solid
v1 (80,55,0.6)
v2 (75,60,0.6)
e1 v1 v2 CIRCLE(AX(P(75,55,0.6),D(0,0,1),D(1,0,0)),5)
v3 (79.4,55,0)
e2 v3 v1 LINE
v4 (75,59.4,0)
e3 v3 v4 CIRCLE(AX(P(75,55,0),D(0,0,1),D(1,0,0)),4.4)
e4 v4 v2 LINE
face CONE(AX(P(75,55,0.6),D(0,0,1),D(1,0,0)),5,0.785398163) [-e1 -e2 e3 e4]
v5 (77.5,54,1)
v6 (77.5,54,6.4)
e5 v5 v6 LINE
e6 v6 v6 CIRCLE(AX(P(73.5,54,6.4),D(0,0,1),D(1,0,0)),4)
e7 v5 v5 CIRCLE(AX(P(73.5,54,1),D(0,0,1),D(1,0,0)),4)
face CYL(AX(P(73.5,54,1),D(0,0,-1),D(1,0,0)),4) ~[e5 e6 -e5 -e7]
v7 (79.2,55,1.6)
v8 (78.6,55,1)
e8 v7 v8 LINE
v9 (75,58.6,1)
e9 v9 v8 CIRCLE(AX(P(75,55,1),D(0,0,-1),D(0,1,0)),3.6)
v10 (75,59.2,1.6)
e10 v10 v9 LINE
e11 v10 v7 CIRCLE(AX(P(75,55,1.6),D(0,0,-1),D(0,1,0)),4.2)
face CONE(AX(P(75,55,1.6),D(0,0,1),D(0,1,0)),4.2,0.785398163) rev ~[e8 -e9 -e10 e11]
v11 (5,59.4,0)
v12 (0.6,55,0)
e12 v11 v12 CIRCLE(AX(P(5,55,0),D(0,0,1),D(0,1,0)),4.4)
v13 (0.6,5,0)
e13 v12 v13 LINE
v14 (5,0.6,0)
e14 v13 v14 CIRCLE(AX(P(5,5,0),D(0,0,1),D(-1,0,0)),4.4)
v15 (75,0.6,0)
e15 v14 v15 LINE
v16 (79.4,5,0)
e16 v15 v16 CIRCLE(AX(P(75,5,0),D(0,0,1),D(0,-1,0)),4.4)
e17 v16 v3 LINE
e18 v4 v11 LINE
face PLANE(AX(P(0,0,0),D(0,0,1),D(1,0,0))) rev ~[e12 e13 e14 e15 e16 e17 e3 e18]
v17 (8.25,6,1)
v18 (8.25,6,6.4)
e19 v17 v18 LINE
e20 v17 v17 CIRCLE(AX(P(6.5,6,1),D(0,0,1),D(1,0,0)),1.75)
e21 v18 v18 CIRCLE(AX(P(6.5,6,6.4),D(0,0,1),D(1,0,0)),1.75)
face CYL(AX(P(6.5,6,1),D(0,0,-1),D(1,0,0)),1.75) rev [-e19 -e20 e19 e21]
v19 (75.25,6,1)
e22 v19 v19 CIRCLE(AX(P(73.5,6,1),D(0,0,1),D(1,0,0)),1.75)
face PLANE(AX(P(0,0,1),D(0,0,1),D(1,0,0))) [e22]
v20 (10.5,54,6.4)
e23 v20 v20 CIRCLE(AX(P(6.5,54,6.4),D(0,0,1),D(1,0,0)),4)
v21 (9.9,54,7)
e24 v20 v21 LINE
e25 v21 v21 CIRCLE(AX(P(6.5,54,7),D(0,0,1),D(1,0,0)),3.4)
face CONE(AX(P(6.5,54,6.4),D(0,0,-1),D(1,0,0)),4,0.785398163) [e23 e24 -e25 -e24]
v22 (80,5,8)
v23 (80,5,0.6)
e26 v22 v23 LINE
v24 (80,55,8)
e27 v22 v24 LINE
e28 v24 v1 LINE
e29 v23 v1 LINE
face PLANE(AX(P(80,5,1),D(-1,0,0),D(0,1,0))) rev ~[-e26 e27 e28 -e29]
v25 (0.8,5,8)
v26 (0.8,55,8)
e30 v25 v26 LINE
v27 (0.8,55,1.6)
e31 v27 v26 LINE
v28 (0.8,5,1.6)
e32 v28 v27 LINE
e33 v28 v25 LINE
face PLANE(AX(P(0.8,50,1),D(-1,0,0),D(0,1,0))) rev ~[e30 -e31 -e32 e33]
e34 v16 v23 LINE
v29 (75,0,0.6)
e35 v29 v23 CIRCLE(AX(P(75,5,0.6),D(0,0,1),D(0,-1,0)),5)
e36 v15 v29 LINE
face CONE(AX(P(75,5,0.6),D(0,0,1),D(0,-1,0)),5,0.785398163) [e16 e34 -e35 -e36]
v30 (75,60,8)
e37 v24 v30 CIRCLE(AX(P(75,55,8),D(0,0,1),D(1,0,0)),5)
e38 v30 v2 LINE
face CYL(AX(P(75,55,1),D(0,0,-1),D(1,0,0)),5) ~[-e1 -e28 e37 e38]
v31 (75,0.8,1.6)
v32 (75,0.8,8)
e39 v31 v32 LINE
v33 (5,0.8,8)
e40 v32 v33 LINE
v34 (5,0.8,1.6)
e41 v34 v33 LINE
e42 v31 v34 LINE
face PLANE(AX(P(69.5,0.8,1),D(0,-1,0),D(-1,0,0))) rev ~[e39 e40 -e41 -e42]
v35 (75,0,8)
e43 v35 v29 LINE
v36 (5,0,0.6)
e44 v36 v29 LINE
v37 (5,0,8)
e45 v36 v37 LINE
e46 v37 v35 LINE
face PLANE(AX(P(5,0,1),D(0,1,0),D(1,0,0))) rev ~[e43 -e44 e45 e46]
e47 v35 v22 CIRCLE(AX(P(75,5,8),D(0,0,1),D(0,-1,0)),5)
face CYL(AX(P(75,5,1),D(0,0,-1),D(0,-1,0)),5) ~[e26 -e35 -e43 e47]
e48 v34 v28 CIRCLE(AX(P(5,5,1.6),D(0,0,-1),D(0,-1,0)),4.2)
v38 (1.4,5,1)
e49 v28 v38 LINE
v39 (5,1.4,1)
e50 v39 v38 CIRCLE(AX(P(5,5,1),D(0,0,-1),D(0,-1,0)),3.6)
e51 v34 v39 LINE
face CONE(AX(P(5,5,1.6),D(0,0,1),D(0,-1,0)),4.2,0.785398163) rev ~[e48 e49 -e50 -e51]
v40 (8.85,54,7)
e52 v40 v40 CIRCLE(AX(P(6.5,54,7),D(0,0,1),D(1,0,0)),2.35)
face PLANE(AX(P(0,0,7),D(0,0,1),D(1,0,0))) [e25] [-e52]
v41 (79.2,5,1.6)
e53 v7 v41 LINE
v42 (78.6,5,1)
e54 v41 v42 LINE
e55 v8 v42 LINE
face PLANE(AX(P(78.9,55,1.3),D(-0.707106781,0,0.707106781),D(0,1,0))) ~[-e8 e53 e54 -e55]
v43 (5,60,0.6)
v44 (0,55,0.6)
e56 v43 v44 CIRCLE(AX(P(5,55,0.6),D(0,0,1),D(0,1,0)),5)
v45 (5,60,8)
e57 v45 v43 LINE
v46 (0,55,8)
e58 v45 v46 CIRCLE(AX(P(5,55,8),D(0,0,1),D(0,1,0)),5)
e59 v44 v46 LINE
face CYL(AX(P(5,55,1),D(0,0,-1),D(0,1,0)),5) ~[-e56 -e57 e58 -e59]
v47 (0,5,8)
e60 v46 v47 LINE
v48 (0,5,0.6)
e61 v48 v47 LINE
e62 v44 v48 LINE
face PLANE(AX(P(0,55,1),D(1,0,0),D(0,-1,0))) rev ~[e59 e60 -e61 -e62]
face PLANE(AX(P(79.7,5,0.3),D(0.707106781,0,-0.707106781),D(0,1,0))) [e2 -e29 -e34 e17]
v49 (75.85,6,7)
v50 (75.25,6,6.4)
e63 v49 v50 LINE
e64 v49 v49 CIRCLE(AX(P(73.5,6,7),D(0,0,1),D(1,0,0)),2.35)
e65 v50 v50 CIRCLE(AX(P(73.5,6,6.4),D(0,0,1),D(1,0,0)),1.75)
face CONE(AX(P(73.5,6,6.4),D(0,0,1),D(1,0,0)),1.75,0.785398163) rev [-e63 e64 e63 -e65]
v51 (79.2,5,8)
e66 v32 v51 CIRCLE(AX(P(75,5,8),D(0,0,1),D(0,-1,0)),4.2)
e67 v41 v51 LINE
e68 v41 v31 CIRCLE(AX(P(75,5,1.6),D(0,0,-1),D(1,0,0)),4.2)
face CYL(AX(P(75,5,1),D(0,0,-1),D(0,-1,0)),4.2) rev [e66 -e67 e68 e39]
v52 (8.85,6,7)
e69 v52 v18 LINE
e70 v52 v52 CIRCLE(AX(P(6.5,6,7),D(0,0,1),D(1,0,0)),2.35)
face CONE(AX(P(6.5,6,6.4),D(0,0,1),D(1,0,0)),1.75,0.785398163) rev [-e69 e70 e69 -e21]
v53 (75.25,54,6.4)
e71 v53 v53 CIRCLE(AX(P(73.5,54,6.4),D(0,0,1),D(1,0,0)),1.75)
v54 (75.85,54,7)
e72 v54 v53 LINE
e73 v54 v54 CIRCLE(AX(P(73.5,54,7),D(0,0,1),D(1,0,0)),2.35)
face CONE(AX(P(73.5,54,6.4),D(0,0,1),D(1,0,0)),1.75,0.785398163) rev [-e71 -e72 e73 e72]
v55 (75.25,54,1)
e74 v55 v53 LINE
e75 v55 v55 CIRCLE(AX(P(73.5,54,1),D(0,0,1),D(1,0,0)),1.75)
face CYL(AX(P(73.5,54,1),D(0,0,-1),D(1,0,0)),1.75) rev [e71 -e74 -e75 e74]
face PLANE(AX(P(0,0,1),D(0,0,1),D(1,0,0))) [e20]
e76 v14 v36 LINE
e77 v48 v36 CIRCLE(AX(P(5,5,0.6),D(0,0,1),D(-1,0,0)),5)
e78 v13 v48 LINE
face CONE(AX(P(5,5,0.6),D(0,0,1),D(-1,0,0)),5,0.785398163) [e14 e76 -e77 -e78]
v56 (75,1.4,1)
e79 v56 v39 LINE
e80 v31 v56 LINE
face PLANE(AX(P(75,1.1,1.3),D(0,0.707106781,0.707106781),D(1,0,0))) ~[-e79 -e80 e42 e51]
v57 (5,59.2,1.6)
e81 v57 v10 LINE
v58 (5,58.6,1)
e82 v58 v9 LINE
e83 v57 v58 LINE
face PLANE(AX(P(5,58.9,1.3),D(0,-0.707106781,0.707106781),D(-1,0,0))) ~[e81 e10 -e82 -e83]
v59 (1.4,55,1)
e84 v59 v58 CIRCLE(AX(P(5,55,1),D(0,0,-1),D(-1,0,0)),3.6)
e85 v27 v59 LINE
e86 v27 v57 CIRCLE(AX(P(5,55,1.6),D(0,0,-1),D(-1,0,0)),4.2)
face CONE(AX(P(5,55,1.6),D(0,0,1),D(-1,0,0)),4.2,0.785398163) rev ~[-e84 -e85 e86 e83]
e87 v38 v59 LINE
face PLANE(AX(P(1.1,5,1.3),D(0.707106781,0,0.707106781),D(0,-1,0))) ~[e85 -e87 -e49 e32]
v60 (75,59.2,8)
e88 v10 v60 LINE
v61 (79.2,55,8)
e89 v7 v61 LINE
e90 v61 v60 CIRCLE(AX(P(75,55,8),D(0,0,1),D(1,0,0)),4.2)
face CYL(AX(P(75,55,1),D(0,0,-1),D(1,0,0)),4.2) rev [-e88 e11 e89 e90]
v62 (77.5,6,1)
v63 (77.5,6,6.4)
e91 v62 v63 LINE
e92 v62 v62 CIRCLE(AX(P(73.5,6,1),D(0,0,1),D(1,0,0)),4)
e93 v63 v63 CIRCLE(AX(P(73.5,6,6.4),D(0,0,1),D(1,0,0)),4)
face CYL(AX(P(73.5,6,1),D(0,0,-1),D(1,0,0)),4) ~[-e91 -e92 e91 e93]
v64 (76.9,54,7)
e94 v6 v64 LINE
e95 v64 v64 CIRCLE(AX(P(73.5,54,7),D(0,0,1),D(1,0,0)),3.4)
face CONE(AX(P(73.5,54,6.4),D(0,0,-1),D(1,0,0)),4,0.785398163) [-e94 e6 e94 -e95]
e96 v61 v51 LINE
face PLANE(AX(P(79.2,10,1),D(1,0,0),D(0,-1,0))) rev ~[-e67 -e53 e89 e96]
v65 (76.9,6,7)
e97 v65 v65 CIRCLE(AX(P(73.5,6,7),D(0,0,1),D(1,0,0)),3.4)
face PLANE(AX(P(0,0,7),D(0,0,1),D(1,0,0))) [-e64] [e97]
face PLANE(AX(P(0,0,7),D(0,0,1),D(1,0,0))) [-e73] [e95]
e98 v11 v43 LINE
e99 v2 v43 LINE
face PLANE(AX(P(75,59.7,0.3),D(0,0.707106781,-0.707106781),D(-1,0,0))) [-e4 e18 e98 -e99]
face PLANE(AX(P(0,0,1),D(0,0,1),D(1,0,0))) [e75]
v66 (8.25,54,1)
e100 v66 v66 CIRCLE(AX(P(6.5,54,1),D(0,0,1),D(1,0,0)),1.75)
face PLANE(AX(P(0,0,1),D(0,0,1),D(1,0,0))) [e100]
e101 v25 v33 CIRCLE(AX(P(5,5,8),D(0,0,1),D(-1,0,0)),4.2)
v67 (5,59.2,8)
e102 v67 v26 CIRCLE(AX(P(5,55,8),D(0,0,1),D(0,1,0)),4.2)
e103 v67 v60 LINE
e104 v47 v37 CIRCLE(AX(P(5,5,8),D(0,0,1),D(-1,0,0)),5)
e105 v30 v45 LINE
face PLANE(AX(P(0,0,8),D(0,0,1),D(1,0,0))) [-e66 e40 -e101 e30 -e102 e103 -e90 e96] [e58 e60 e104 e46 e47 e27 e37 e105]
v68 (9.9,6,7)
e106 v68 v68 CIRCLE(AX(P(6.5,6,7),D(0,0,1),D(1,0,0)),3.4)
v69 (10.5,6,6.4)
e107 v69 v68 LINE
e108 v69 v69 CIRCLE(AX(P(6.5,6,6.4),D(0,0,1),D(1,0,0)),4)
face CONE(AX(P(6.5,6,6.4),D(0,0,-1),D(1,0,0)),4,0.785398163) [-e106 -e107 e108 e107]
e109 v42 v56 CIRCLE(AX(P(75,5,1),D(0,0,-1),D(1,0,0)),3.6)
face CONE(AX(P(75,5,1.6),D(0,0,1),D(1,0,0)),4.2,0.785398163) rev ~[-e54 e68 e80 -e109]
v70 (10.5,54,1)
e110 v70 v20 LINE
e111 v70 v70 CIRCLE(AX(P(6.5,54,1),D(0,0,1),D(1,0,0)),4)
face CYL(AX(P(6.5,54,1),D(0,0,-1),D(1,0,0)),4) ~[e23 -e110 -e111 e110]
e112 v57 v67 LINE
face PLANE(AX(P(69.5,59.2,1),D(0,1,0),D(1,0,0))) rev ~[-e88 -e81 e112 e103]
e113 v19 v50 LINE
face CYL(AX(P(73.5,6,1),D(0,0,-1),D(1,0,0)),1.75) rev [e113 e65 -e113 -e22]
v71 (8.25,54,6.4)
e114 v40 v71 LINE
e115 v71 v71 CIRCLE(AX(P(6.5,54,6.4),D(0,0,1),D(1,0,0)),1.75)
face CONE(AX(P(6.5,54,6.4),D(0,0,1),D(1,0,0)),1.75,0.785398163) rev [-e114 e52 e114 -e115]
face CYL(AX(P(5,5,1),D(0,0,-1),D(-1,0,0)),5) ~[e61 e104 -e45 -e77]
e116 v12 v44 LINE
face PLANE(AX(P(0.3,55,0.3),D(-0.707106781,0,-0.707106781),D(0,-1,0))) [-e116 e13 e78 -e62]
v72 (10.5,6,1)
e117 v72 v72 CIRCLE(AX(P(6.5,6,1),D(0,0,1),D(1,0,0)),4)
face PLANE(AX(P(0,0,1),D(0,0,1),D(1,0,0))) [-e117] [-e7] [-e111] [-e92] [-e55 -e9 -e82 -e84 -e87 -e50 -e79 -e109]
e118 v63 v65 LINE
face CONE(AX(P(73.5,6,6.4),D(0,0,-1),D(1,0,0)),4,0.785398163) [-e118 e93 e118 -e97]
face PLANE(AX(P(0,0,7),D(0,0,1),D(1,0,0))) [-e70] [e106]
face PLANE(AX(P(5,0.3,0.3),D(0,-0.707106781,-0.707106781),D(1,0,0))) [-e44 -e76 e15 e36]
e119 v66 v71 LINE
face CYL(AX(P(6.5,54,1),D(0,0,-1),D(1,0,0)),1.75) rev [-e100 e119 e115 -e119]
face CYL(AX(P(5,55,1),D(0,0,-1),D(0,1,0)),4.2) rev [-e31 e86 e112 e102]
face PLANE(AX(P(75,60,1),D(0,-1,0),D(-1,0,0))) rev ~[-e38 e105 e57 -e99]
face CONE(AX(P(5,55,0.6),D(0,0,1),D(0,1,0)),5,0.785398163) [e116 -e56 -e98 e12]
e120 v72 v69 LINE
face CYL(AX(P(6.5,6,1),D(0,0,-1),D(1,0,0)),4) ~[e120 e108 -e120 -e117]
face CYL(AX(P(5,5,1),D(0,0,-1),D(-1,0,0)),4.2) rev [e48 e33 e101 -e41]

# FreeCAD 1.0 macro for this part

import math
import FreeCAD as App
import Part
import Sketcher

V = App.Vector


def edges_at(feature, points):
    """Names of the edges that pass closest to the given points."""
    edges = feature.Shape.Edges
    near = lambda p: min(range(len(edges)), key=lambda i: edges[i].distToShape(Part.Vertex(*p))[0])
    return sorted({f"Edge{near(p) + 1}" for p in points})

doc = App.newDocument("Part")
body = doc.addObject("PartDesign::Body", "Body")

# Sketch on XY plane
sketch1 = doc.addObject("Sketcher::SketchObject", "Sketch")
body.addObject(sketch1)
sketch1.AttachmentSupport = (doc.XY_Plane, [""])
sketch1.MapMode = "FlatFace"
sketch1.addGeometry([
    Part.ArcOfCircle(Part.Circle(V(5, 5, 0), V(0, 0, 1), 5), math.radians(180), math.radians(270)),  # 0
    Part.LineSegment(V(5, 0, 0), V(75, 0, 0)),  # 1
    Part.ArcOfCircle(Part.Circle(V(75, 5, 0), V(0, 0, 1), 5), math.radians(-90), math.radians(0)),  # 2
    Part.LineSegment(V(80, 5, 0), V(80, 55, 0)),  # 3
    Part.ArcOfCircle(Part.Circle(V(75, 55, 0), V(0, 0, 1), 5), math.radians(0), math.radians(90)),  # 4
    Part.LineSegment(V(75, 60, 0), V(5, 60, 0)),  # 5
    Part.ArcOfCircle(Part.Circle(V(5, 55, 0), V(0, 0, 1), 5), math.radians(90), math.radians(180)),  # 6
    Part.LineSegment(V(0, 55, 0), V(0, 5, 0)),  # 7
], False)
sketch1.addConstraint([
    Sketcher.Constraint("Tangent", 0, 2, 1, 1),
    Sketcher.Constraint("Tangent", 1, 2, 2, 1),
    Sketcher.Constraint("Tangent", 2, 2, 3, 1),
    Sketcher.Constraint("Tangent", 3, 2, 4, 1),
    Sketcher.Constraint("Tangent", 4, 2, 5, 1),
    Sketcher.Constraint("Tangent", 5, 2, 6, 1),
    Sketcher.Constraint("Tangent", 6, 2, 7, 1),
    Sketcher.Constraint("Tangent", 7, 2, 0, 1),
    Sketcher.Constraint("Horizontal", 1),
    Sketcher.Constraint("Vertical", 3),
    Sketcher.Constraint("Horizontal", 5),
    Sketcher.Constraint("Vertical", 7),
    Sketcher.Constraint("Equal", 0, 2),
    Sketcher.Constraint("Equal", 2, 4),
    Sketcher.Constraint("Equal", 4, 6),
    Sketcher.Constraint("PointOnObject", 0, 2, -1),
    Sketcher.Constraint("PointOnObject", 6, 2, -2),
    Sketcher.Constraint("Radius", 0, 5.0),
    Sketcher.Constraint("DistanceX", -1, 1, 2, 2, 80.0),
    Sketcher.Constraint("DistanceY", -1, 1, 4, 2, 60.0),
])
pad1 = doc.addObject("PartDesign::Pad", "Pad")
body.addObject(pad1)
pad1.Profile = sketch1
pad1.Length = 1

# Sketch on XY plane
sketch2 = doc.addObject("Sketcher::SketchObject", "Sketch001")
body.addObject(sketch2)
sketch2.AttachmentSupport = (doc.XY_Plane, [""])
sketch2.MapMode = "FlatFace"
sketch2.AttachmentOffset = App.Placement(V(0, 0, 1), App.Rotation())
sketch2.addGeometry([
    Part.Circle(V(6.5, 54, 0), V(0, 0, 1), 4),  # 0
    Part.Circle(V(6.5, 54, 0), V(0, 0, 1), 1.75),  # 1
    Part.Circle(V(73.5, 54, 0), V(0, 0, 1), 4),  # 2
    Part.Circle(V(73.5, 54, 0), V(0, 0, 1), 1.75),  # 3
    Part.Circle(V(6.5, 6, 0), V(0, 0, 1), 4),  # 4
    Part.Circle(V(6.5, 6, 0), V(0, 0, 1), 1.75),  # 5
    Part.Circle(V(73.5, 6, 0), V(0, 0, 1), 4),  # 6
    Part.Circle(V(73.5, 6, 0), V(0, 0, 1), 1.75),  # 7
], False)
sketch2.addConstraint([
    Sketcher.Constraint("Coincident", 1, 3, 0, 3),
    Sketcher.Constraint("Coincident", 3, 3, 2, 3),
    Sketcher.Constraint("Coincident", 5, 3, 4, 3),
    Sketcher.Constraint("Coincident", 7, 3, 6, 3),
    Sketcher.Constraint("Equal", 0, 2),
    Sketcher.Constraint("Equal", 1, 3),
    Sketcher.Constraint("Equal", 2, 4),
    Sketcher.Constraint("Equal", 3, 5),
    Sketcher.Constraint("Equal", 4, 6),
    Sketcher.Constraint("Equal", 5, 7),
    Sketcher.Constraint("Horizontal", 1, 3, 2, 3),
    Sketcher.Constraint("Horizontal", 5, 3, 6, 3),
    Sketcher.Constraint("Vertical", 1, 3, 4, 3),
    Sketcher.Constraint("Vertical", 3, 3, 6, 3),
    Sketcher.Constraint("Diameter", 0, 8.0),
    Sketcher.Constraint("Diameter", 1, 3.5),
    Sketcher.Constraint("DistanceY", -1, 1, 4, 3, 6.0),
    Sketcher.Constraint("DistanceX", 0, 3, 2, 3, 67.0),
    Sketcher.Constraint("DistanceY", 4, 3, 0, 3, 48.0),
    Sketcher.Constraint("DistanceX", -1, 1, 0, 3, 6.5),
])
pad2 = doc.addObject("PartDesign::Pad", "Pad001")
body.addObject(pad2)
pad2.Profile = sketch2
pad2.Length = 6

# Sketch on XY plane
sketch3 = doc.addObject("Sketcher::SketchObject", "Sketch002")
body.addObject(sketch3)
sketch3.AttachmentSupport = (doc.XY_Plane, [""])
sketch3.MapMode = "FlatFace"
sketch3.AttachmentOffset = App.Placement(V(0, 0, 1), App.Rotation())
sketch3.addGeometry([
    Part.ArcOfCircle(Part.Circle(V(5, 55, 0), V(0, 0, 1), 5), math.radians(90), math.radians(180)),  # 0
    Part.LineSegment(V(0, 55, 0), V(0, 5, 0)),  # 1
    Part.ArcOfCircle(Part.Circle(V(5, 5, 0), V(0, 0, 1), 5), math.radians(180), math.radians(270)),  # 2
    Part.LineSegment(V(5, 0, 0), V(75, 0, 0)),  # 3
    Part.ArcOfCircle(Part.Circle(V(75, 5, 0), V(0, 0, 1), 5), math.radians(-90), math.radians(0)),  # 4
    Part.LineSegment(V(80, 5, 0), V(80, 55, 0)),  # 5
    Part.ArcOfCircle(Part.Circle(V(75, 55, 0), V(0, 0, 1), 5), math.radians(0), math.radians(90)),  # 6
    Part.LineSegment(V(75, 60, 0), V(5, 60, 0)),  # 7
    Part.LineSegment(V(75, 0.8, 0), V(5, 0.8, 0)),  # 8
    Part.ArcOfCircle(Part.Circle(V(5, 5, 0), V(0, 0, 1), 4.2), math.radians(180), math.radians(270)),  # 9
    Part.LineSegment(V(0.8, 5, 0), V(0.8, 55, 0)),  # 10
    Part.ArcOfCircle(Part.Circle(V(5, 55, 0), V(0, 0, 1), 4.2), math.radians(90), math.radians(180)),  # 11
    Part.LineSegment(V(5, 59.2, 0), V(75, 59.2, 0)),  # 12
    Part.ArcOfCircle(Part.Circle(V(75, 55, 0), V(0, 0, 1), 4.2), math.radians(0), math.radians(90)),  # 13
    Part.LineSegment(V(79.2, 55, 0), V(79.2, 5, 0)),  # 14
    Part.ArcOfCircle(Part.Circle(V(75, 5, 0), V(0, 0, 1), 4.2), math.radians(-90), math.radians(0)),  # 15
], False)
sketch3.addConstraint([
    Sketcher.Constraint("Tangent", 0, 2, 1, 1),
    Sketcher.Constraint("Tangent", 1, 2, 2, 1),
    Sketcher.Constraint("Tangent", 2, 2, 3, 1),
    Sketcher.Constraint("Tangent", 3, 2, 4, 1),
    Sketcher.Constraint("Tangent", 4, 2, 5, 1),
    Sketcher.Constraint("Tangent", 5, 2, 6, 1),
    Sketcher.Constraint("Tangent", 6, 2, 7, 1),
    Sketcher.Constraint("Tangent", 7, 2, 0, 1),
    Sketcher.Constraint("Tangent", 8, 2, 9, 2),
    Sketcher.Constraint("Tangent", 9, 1, 10, 1),
    Sketcher.Constraint("Tangent", 10, 2, 11, 2),
    Sketcher.Constraint("Tangent", 11, 1, 12, 1),
    Sketcher.Constraint("Tangent", 12, 2, 13, 2),
    Sketcher.Constraint("Tangent", 13, 1, 14, 1),
    Sketcher.Constraint("Tangent", 14, 2, 15, 2),
    Sketcher.Constraint("Tangent", 15, 1, 8, 1),
    Sketcher.Constraint("Vertical", 1),
    Sketcher.Constraint("Horizontal", 3),
    Sketcher.Constraint("Vertical", 5),
    Sketcher.Constraint("Horizontal", 7),
    Sketcher.Constraint("Horizontal", 8),
    Sketcher.Constraint("Vertical", 10),
    Sketcher.Constraint("Horizontal", 12),
    Sketcher.Constraint("Vertical", 14),
    Sketcher.Constraint("Coincident", 9, 3, 2, 3),
    Sketcher.Constraint("Coincident", 11, 3, 0, 3),
    Sketcher.Constraint("Coincident", 13, 3, 6, 3),
    Sketcher.Constraint("Equal", 0, 2),
    Sketcher.Constraint("Equal", 2, 4),
    Sketcher.Constraint("Equal", 4, 6),
    Sketcher.Constraint("Equal", 13, 15),
    Sketcher.Constraint("PointOnObject", 0, 2, -2),
    Sketcher.Constraint("PointOnObject", 2, 2, -1),
    Sketcher.Constraint("Radius", 0, 5.0),
    Sketcher.Constraint("DistanceY", -1, 1, 8, 2, 0.8),
    Sketcher.Constraint("DistanceX", 3, 1, 3, 2, 70.0),
    Sketcher.Constraint("DistanceY", 1, 2, 1, 1, 50.0),
])
pad3 = doc.addObject("PartDesign::Pad", "Pad002")
body.addObject(pad3)
pad3.Profile = sketch3
pad3.Length = 7
doc.recompute()

chamfer = doc.addObject("PartDesign::Chamfer", "Chamfer")
body.addObject(chamfer)
chamfer.Base = (pad3, edges_at(pad3, [
    (40, 0, 0),
    (78.535, 1.464, 0),
    (80, 30, 0),
    (78.535, 58.535, 0),
    (40, 60, 0),
    (1.464, 58.535, 0),
    (0, 30, 0),
    (1.464, 1.464, 0),
    (40, 59.2, 1),
    (2.03, 57.97, 1),
    (0.8, 30, 1),
    (2.03, 2.03, 1),
    (40, 0.8, 1),
    (77.97, 2.03, 1),
    (79.2, 30, 1),
    (77.97, 57.97, 1),
    (4.75, 6, 7),
    (2.5, 6, 7),
    (4.75, 54, 7),
    (2.5, 54, 7),
    (71.75, 54, 7),
    (69.5, 54, 7),
    (71.75, 6, 7),
    (69.5, 6, 7),
]))
chamfer.Size = 0.6

doc.recompute()
